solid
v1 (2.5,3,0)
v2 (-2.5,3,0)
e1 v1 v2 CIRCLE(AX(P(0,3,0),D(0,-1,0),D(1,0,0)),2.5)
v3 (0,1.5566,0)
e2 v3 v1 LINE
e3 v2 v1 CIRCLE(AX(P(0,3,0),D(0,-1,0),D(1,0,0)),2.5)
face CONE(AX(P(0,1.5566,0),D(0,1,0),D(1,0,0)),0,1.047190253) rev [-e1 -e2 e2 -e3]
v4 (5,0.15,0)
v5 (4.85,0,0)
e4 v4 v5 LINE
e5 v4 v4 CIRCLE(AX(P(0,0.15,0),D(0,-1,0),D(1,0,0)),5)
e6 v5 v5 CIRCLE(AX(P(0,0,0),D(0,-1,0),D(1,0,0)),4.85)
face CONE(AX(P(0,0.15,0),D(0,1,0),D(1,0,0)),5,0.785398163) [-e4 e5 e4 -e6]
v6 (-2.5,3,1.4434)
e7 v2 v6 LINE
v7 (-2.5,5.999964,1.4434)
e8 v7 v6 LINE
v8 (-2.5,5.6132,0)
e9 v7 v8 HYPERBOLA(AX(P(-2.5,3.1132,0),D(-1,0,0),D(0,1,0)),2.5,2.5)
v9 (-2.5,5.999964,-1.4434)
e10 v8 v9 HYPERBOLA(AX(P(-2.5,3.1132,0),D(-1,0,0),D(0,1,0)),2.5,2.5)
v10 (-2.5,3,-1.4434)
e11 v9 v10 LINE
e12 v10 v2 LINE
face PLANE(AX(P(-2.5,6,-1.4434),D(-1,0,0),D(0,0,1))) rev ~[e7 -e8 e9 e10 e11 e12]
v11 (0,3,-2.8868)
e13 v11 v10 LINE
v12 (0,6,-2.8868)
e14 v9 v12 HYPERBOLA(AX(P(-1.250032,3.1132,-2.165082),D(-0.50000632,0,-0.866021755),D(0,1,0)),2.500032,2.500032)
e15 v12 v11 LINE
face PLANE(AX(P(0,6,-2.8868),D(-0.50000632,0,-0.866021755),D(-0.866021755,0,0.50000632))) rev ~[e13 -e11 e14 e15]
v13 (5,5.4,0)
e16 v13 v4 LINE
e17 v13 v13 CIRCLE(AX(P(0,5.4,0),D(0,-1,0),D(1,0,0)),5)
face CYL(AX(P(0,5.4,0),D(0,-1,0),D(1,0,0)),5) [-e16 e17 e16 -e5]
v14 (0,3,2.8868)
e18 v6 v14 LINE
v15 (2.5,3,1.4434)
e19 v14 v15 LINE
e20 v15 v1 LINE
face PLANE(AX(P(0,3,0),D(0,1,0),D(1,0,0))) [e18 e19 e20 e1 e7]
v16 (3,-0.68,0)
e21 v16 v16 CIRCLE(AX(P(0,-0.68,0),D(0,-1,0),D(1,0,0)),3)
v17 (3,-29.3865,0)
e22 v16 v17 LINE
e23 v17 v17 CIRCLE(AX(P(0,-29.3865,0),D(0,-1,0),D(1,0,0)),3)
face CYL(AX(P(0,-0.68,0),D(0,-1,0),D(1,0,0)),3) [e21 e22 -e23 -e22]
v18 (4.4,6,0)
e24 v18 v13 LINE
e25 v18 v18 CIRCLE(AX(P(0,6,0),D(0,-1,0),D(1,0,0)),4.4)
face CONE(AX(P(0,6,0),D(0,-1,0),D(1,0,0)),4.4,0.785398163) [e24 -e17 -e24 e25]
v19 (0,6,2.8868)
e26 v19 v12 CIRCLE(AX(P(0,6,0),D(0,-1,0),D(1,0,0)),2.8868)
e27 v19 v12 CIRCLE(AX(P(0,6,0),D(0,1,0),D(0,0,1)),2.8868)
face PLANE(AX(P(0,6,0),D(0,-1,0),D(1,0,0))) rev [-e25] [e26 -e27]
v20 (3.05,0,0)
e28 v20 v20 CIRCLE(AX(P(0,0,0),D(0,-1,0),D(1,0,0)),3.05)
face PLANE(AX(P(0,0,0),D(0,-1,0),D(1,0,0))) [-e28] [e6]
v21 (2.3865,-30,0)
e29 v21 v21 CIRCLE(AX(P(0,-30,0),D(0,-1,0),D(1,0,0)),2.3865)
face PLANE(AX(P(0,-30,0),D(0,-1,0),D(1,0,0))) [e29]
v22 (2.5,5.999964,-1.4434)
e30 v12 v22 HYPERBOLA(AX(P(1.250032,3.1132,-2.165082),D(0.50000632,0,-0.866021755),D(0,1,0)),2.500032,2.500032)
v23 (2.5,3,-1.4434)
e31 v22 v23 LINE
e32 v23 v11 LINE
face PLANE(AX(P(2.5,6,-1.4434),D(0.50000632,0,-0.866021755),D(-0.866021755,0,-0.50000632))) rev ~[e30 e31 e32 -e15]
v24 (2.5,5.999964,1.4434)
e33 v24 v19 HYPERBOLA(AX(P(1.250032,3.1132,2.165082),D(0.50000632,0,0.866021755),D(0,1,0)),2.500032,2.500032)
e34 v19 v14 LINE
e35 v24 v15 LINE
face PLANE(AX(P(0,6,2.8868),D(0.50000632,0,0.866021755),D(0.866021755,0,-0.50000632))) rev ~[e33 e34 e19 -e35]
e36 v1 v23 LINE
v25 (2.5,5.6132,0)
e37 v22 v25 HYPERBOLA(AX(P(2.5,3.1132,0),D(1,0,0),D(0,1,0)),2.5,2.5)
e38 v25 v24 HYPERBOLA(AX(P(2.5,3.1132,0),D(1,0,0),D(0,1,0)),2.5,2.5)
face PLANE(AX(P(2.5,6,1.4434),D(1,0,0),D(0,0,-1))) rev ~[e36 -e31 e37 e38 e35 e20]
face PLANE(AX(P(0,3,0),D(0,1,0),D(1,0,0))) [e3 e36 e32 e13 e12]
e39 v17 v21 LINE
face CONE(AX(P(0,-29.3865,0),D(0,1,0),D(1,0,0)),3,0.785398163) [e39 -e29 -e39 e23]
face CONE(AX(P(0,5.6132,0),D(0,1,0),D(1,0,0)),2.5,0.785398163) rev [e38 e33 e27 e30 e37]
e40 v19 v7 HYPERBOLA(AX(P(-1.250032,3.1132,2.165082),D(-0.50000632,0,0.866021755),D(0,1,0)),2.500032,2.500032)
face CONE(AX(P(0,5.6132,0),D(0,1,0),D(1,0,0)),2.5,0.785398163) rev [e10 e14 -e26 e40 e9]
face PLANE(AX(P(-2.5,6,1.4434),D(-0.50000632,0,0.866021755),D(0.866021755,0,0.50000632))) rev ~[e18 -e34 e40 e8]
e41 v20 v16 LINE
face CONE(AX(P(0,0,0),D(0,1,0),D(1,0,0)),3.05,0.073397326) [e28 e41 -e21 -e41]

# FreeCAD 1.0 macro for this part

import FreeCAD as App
import Part
import Sketcher

V = App.Vector
Q = App.Units.Quantity


def add_polygon(sketch, points):
    """Adds a closed chain of lines whose ends are joined by coincident constraints."""
    first, n = sketch.GeometryCount, len(points)
    for a, b in zip(points, points[1:] + points[:1]):
        sketch.addGeometry(Part.LineSegment(App.Vector(*a, 0), App.Vector(*b, 0)), False)
    for i in range(n):
        sketch.addConstraint(Sketcher.Constraint("Coincident", first + i, 2, first + (i + 1) % n, 1))

doc = App.newDocument("Part")
body = doc.addObject("PartDesign::Body", "Body")

# Sketch on XY plane
sketch1 = body.newObject("Sketcher::SketchObject", "Sketch")
sketch1.AttachmentSupport = (doc.getObject("XY_Plane"), [""])
sketch1.MapMode = "FlatFace"
add_polygon(sketch1, [(0, 1.56), (0, -30), (2.39, -30), (3, -29.39), (3, -0.68), (3.05, 0), (4.85, 0), (5, 0.15), (5, 5.4), (4.4, 6), (2.89, 6), (2.5, 5.61), (2.5, 3)])  # lines 0-12
sketch1.addConstraint(Sketcher.Constraint("Vertical", 0))
sketch1.addConstraint(Sketcher.Constraint("Horizontal", 1))
sketch1.addConstraint(Sketcher.Constraint("Vertical", 3))
sketch1.addConstraint(Sketcher.Constraint("Horizontal", 5))
sketch1.addConstraint(Sketcher.Constraint("Vertical", 7))
sketch1.addConstraint(Sketcher.Constraint("Horizontal", 9))
sketch1.addConstraint(Sketcher.Constraint("Vertical", 11))
sketch1.addConstraint(Sketcher.Constraint("PointOnObject", 0, 2, -2))
sketch1.addConstraint(Sketcher.Constraint("PointOnObject", 4, 2, -1))
sketch1.addConstraint(Sketcher.Constraint("Parallel", 2, 6))
sketch1.addConstraint(Sketcher.Constraint("Perpendicular", 6, 8))
sketch1.addConstraint(Sketcher.Constraint("Perpendicular", 8, 10))
sketch1.addConstraint(Sketcher.Constraint("Angle", 2, Q("45 deg")))
sketch1.addConstraint(Sketcher.Constraint("Angle", 12, Q("-149.9996 deg")))
sketch1.addConstraint(Sketcher.Constraint("DistanceX", 5, 1, 5, 2, Q("1.8 mm")))
sketch1.addConstraint(Sketcher.Constraint("DistanceY", 0, 2, -1, 1, Q("30 mm")))
sketch1.addConstraint(Sketcher.Constraint("DistanceX", -1, 1, 2, 2, Q("3 mm")))
sketch1.addConstraint(Sketcher.Constraint("DistanceX", -1, 1, 6, 2, Q("5 mm")))
sketch1.addConstraint(Sketcher.Constraint("DistanceY", -1, 1, 8, 2, Q("6 mm")))
sketch1.addConstraint(Sketcher.Constraint("DistanceY", -1, 1, 11, 2, Q("3 mm")))
sketch1.addConstraint(Sketcher.Constraint("DistanceY", 7, 1, 7, 2, Q("5.25 mm")))
sketch1.addConstraint(Sketcher.Constraint("DistanceY", -1, 1, 7, 2, Q("5.4 mm")))
sketch1.addConstraint(Sketcher.Constraint("DistanceX", -1, 1, 10, 2, Q("2.5 mm")))
sketch1.addConstraint(Sketcher.Constraint("DistanceY", 3, 2, -1, 1, Q("0.68 mm")))
sketch1.addConstraint(Sketcher.Constraint("Distance", 10, Q("0.547 mm")))
sketch1.addConstraint(Sketcher.Constraint("DistanceX", 1, 1, 1, 2, Q("2.3865 mm")))
revolution = body.newObject("PartDesign::Revolution", "Revolution")
revolution.Profile = sketch1
revolution.ReferenceAxis = (sketch1, ["V_Axis"])
revolution.Angle = 360

# Sketch on XZ plane
sketch2 = body.newObject("Sketcher::SketchObject", "Sketch001")
sketch2.AttachmentSupport = (doc.getObject("XZ_Plane"), [""])
sketch2.MapMode = "FlatFace"
sketch2.AttachmentOffset = App.Placement(V(0, 0, -6), App.Rotation())
add_polygon(sketch2, [(-2.5, -1.4), (-2.5, 1.4), (0, 2.9), (2.5, 1.4), (2.5, -1.4), (0, -2.9)])  # lines 0-5
sketch2.addConstraint(Sketcher.Constraint("Vertical", 0))
sketch2.addConstraint(Sketcher.Constraint("Vertical", 3))
sketch2.addConstraint(Sketcher.Constraint("Symmetric", 0, 2, 3, 2, -1, 1))
sketch2.addConstraint(Sketcher.Constraint("Symmetric", 1, 2, 4, 2, -1, 1))
sketch2.addConstraint(Sketcher.Constraint("PointOnObject", 1, 2, -2))
sketch2.addConstraint(Sketcher.Constraint("Parallel", 2, 5))
sketch2.addConstraint(Sketcher.Constraint("Horizontal", 0, 2, 2, 2))
sketch2.addConstraint(Sketcher.Constraint("Angle", 1, Q("30.0004 deg")))
sketch2.addConstraint(Sketcher.Constraint("DistanceX", 0, 2, 2, 2, Q("5 mm")))
sketch2.addConstraint(Sketcher.Constraint("DistanceY", 0, 1, 0, 2, Q("2.8868 mm")))
pocket1 = body.newObject("PartDesign::Pocket", "Pocket")
pocket1.Profile = sketch2
pocket1.Length = 3
pocket1.Reversed = True

doc.recompute()
